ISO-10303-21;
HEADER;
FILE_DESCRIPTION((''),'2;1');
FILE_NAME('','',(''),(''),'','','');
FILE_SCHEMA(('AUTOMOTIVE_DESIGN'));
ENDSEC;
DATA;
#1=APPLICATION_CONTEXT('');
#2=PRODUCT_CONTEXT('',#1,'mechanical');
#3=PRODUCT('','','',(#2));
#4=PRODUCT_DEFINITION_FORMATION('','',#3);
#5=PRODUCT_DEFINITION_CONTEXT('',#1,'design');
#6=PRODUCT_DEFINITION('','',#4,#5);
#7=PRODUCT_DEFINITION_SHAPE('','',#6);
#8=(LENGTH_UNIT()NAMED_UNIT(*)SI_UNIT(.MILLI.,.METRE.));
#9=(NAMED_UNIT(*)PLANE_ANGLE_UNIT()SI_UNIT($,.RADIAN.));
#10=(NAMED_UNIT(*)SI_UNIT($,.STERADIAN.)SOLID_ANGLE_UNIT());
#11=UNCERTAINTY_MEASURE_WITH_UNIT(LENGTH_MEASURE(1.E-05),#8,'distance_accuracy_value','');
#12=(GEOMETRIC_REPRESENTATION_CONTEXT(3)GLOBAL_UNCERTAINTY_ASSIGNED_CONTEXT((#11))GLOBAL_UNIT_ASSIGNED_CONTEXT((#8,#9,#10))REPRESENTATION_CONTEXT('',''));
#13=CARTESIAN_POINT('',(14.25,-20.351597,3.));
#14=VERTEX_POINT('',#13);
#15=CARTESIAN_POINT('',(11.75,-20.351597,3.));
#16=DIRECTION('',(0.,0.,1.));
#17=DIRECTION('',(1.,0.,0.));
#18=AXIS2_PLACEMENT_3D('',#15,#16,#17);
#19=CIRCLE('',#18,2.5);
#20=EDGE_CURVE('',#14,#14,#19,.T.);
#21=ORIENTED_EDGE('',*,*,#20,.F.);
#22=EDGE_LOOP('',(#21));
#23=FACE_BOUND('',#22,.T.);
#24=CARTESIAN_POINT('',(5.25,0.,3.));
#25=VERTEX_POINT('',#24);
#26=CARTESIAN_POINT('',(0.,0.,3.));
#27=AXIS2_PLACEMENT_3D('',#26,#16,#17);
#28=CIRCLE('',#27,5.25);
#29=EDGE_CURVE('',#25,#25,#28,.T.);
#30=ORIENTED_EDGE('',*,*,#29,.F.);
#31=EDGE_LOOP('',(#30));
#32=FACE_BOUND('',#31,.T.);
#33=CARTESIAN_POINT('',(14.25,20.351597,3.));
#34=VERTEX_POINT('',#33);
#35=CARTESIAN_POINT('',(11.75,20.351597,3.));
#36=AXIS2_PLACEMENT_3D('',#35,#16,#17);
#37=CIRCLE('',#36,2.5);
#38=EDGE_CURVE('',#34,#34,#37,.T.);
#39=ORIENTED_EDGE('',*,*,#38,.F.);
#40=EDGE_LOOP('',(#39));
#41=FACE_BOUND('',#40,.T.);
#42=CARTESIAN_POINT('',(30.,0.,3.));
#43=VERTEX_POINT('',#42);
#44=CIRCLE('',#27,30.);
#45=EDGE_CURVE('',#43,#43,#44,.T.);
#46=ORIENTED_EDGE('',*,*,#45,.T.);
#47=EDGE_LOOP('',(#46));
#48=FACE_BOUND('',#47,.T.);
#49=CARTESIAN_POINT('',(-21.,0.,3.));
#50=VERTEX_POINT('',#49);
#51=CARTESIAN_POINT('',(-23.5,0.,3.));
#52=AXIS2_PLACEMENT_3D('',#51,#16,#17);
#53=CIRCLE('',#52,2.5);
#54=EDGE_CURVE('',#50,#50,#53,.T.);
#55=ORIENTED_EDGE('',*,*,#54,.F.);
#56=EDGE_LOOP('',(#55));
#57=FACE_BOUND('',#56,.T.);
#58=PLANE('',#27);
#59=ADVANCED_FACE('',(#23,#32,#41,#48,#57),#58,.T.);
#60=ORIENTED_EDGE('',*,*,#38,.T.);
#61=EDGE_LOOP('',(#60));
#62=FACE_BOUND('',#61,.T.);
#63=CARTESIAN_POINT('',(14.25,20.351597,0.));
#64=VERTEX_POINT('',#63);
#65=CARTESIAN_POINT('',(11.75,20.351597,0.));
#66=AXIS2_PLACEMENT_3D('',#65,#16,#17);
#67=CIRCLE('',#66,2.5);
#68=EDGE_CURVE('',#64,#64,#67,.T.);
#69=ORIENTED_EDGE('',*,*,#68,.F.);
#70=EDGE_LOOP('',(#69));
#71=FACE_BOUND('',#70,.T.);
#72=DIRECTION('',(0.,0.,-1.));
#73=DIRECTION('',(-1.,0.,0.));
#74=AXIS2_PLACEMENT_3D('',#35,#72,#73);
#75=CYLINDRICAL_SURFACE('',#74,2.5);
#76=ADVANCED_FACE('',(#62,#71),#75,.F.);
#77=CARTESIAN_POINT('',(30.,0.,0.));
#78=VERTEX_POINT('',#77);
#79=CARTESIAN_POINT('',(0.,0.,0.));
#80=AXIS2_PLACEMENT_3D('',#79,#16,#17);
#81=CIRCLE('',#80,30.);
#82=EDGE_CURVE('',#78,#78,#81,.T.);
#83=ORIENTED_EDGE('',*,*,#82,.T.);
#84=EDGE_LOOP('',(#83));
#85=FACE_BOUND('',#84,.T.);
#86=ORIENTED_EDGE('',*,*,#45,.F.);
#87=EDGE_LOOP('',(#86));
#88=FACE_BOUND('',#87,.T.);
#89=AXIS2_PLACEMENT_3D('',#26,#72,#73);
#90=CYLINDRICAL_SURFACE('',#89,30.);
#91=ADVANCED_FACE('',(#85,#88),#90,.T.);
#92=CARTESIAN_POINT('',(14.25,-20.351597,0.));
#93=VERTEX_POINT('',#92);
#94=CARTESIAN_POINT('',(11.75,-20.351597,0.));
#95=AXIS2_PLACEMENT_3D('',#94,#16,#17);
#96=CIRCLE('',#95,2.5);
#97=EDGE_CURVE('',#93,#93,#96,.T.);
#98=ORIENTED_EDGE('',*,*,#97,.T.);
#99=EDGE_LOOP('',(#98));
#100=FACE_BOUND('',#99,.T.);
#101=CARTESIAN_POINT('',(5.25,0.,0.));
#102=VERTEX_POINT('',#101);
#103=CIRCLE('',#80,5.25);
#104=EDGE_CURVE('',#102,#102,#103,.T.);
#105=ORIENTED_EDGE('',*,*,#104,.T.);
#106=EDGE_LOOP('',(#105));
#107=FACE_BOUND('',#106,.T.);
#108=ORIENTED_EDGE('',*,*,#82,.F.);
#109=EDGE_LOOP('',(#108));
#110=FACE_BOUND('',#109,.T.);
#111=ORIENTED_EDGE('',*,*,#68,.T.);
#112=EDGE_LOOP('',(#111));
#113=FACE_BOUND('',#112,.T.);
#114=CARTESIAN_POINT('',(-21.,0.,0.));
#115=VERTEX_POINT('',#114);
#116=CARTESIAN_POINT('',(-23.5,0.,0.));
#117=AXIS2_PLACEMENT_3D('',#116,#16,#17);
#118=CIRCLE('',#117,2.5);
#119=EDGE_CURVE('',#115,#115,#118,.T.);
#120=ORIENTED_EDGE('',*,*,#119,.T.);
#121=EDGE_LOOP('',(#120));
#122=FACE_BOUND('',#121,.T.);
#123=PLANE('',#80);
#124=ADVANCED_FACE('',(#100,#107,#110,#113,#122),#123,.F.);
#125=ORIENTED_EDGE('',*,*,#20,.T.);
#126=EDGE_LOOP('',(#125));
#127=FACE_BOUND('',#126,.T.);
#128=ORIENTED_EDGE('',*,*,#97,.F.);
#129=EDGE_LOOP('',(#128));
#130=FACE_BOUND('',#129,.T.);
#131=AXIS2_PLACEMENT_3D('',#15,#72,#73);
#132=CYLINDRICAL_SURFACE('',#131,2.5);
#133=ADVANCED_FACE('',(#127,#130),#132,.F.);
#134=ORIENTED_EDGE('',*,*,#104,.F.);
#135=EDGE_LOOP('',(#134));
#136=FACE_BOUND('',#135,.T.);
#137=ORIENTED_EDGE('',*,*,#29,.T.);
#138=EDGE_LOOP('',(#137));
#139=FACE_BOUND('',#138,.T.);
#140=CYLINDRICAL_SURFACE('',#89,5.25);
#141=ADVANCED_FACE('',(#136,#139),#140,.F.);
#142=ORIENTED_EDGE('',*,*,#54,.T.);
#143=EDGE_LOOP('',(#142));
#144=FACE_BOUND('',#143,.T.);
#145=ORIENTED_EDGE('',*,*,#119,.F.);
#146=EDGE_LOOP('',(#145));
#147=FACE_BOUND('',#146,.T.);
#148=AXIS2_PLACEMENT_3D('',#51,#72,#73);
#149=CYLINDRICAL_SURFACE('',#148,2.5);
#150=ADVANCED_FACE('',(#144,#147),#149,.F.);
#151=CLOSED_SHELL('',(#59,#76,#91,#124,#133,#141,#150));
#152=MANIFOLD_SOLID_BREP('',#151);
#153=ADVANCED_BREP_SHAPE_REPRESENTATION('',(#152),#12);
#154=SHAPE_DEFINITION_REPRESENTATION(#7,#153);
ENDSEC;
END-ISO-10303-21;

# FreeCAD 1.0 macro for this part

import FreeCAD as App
import Part
import Sketcher
from FreeCAD import Vector

doc = App.newDocument("Part")
body = doc.addObject("PartDesign::Body", "Body")

# Sketch on XY plane
sketch1 = body.newObject("Sketcher::SketchObject", "Sketch")
sketch1.AttachmentSupport = (doc.getObject("XY_Plane"), [""])
sketch1.MapMode = "FlatFace"
sketch1.addGeometry(Part.Circle(Vector(0, 0, 0), Vector(0, 0, 1), 30), False)
sketch1.addGeometry(Part.Circle(Vector(11.8, -20.4, 0), Vector(0, 0, 1), 2.5), False)
sketch1.addGeometry(Part.Circle(Vector(-23.5, 0, 0), Vector(0, 0, 1), 2.5), False)
sketch1.addGeometry(Part.Circle(Vector(0, 0, 0), Vector(0, 0, 1), 5.2), False)
sketch1.addGeometry(Part.Circle(Vector(11.8, 20.4, 0), Vector(0, 0, 1), 2.5), False)
sketch1.addConstraint(Sketcher.Constraint("Coincident", 0, 3, -1, 1))
sketch1.addConstraint(Sketcher.Constraint("Coincident", 3, 3, -1, 1))
sketch1.addConstraint(Sketcher.Constraint("Equal", 1, 2))
sketch1.addConstraint(Sketcher.Constraint("Equal", 2, 4))
sketch1.addConstraint(Sketcher.Constraint("Symmetric", 1, 3, 4, 3, -1))
sketch1.addConstraint(Sketcher.Constraint("PointOnObject", 2, 3, -1))
sketch1.addConstraint(Sketcher.Constraint("Diameter", 0, 60.0))
sketch1.addConstraint(Sketcher.Constraint("Diameter", 1, 5.0))
sketch1.addConstraint(Sketcher.Constraint("Diameter", 3, 10.5))
sketch1.addConstraint(Sketcher.Constraint("DistanceX", 2, 3, -1, 1, 23.5))
sketch1.addConstraint(Sketcher.Constraint("DistanceX", -1, 1, 1, 3, 11.75))
sketch1.addConstraint(Sketcher.Constraint("DistanceY", 1, 3, -1, 1, 20.351597))
pad1 = body.newObject("PartDesign::Pad", "Pad")
pad1.Profile = sketch1
pad1.Length = 3

doc.recompute()
